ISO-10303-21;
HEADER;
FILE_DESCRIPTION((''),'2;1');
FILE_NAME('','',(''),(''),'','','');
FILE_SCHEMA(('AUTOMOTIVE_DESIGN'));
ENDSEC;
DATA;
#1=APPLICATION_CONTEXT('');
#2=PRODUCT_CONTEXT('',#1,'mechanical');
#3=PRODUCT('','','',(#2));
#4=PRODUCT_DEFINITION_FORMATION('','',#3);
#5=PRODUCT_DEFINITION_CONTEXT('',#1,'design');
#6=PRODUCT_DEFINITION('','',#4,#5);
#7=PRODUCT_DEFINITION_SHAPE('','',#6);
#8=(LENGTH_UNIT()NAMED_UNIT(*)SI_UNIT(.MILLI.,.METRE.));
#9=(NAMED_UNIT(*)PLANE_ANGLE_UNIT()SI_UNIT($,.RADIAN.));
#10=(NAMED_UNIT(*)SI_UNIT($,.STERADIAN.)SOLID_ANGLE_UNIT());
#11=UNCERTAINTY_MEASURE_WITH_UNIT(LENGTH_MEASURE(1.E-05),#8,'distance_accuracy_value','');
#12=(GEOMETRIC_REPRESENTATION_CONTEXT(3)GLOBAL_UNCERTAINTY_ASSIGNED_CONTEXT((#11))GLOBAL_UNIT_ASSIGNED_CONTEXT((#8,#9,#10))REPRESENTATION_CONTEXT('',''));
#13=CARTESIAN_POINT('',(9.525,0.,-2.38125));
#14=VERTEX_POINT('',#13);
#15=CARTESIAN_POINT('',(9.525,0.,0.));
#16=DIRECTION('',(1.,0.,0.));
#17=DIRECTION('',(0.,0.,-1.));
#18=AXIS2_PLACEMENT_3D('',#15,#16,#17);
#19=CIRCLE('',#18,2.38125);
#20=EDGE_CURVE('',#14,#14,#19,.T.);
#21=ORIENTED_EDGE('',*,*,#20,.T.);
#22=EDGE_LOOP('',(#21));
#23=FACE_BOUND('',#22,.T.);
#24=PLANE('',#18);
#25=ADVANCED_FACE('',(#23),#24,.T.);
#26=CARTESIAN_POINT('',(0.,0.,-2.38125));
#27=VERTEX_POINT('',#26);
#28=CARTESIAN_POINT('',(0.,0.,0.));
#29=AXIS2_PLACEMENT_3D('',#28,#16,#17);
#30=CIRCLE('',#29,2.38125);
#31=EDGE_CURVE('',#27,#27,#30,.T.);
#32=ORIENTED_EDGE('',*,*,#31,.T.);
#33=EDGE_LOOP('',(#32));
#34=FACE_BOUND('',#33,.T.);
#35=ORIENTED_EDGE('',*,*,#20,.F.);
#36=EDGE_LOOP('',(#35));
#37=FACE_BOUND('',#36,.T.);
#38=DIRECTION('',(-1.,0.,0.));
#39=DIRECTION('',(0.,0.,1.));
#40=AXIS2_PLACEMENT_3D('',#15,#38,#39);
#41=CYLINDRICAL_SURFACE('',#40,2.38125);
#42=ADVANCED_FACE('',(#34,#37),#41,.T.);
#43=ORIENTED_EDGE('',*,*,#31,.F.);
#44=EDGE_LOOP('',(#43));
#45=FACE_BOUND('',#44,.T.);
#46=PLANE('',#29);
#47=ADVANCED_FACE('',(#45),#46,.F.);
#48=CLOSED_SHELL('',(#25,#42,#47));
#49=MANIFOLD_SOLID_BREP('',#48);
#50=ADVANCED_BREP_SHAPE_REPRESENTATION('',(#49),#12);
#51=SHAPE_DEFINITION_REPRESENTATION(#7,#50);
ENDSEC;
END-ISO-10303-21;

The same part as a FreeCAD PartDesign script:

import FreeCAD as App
import Part
import Sketcher
from FreeCAD import Vector
Q = App.Units.Quantity

doc = App.newDocument("Part")
params = doc.addObject("Spreadsheet::Sheet", "Params")
for row, (alias, value) in enumerate([
    ("sketch1_diameter", "0.1875 in"),
    ("pad1_length", "0.375 in"),
], start=1):
    params.set(f"A{row}", alias)
    params.set(f"B{row}", "=" + value)
    params.setAlias(f"B{row}", alias)

body = doc.addObject("PartDesign::Body", "Body")

# Sketch on YZ plane
sketch1 = body.newObject("Sketcher::SketchObject", "Sketch")
sketch1.AttachmentSupport = (doc.getObject("YZ_Plane"), [""])
sketch1.MapMode = "FlatFace"
sketch1.addGeometry(Part.Circle(Vector(0, 0, 0), Vector(0, 0, 1), 2.4), False)
sketch1.addConstraint([
    Sketcher.Constraint("Coincident", 0, 3, -1, 1),
    Sketcher.Constraint("Diameter", 0, Q("0.1875 in")),
])
sketch1.setExpression("Constraints[1]", "Params.sketch1_diameter")
pad1 = body.newObject("PartDesign::Pad", "Pad")
pad1.Profile = sketch1
pad1.setExpression("Length", "Params.pad1_length")

doc.recompute()
